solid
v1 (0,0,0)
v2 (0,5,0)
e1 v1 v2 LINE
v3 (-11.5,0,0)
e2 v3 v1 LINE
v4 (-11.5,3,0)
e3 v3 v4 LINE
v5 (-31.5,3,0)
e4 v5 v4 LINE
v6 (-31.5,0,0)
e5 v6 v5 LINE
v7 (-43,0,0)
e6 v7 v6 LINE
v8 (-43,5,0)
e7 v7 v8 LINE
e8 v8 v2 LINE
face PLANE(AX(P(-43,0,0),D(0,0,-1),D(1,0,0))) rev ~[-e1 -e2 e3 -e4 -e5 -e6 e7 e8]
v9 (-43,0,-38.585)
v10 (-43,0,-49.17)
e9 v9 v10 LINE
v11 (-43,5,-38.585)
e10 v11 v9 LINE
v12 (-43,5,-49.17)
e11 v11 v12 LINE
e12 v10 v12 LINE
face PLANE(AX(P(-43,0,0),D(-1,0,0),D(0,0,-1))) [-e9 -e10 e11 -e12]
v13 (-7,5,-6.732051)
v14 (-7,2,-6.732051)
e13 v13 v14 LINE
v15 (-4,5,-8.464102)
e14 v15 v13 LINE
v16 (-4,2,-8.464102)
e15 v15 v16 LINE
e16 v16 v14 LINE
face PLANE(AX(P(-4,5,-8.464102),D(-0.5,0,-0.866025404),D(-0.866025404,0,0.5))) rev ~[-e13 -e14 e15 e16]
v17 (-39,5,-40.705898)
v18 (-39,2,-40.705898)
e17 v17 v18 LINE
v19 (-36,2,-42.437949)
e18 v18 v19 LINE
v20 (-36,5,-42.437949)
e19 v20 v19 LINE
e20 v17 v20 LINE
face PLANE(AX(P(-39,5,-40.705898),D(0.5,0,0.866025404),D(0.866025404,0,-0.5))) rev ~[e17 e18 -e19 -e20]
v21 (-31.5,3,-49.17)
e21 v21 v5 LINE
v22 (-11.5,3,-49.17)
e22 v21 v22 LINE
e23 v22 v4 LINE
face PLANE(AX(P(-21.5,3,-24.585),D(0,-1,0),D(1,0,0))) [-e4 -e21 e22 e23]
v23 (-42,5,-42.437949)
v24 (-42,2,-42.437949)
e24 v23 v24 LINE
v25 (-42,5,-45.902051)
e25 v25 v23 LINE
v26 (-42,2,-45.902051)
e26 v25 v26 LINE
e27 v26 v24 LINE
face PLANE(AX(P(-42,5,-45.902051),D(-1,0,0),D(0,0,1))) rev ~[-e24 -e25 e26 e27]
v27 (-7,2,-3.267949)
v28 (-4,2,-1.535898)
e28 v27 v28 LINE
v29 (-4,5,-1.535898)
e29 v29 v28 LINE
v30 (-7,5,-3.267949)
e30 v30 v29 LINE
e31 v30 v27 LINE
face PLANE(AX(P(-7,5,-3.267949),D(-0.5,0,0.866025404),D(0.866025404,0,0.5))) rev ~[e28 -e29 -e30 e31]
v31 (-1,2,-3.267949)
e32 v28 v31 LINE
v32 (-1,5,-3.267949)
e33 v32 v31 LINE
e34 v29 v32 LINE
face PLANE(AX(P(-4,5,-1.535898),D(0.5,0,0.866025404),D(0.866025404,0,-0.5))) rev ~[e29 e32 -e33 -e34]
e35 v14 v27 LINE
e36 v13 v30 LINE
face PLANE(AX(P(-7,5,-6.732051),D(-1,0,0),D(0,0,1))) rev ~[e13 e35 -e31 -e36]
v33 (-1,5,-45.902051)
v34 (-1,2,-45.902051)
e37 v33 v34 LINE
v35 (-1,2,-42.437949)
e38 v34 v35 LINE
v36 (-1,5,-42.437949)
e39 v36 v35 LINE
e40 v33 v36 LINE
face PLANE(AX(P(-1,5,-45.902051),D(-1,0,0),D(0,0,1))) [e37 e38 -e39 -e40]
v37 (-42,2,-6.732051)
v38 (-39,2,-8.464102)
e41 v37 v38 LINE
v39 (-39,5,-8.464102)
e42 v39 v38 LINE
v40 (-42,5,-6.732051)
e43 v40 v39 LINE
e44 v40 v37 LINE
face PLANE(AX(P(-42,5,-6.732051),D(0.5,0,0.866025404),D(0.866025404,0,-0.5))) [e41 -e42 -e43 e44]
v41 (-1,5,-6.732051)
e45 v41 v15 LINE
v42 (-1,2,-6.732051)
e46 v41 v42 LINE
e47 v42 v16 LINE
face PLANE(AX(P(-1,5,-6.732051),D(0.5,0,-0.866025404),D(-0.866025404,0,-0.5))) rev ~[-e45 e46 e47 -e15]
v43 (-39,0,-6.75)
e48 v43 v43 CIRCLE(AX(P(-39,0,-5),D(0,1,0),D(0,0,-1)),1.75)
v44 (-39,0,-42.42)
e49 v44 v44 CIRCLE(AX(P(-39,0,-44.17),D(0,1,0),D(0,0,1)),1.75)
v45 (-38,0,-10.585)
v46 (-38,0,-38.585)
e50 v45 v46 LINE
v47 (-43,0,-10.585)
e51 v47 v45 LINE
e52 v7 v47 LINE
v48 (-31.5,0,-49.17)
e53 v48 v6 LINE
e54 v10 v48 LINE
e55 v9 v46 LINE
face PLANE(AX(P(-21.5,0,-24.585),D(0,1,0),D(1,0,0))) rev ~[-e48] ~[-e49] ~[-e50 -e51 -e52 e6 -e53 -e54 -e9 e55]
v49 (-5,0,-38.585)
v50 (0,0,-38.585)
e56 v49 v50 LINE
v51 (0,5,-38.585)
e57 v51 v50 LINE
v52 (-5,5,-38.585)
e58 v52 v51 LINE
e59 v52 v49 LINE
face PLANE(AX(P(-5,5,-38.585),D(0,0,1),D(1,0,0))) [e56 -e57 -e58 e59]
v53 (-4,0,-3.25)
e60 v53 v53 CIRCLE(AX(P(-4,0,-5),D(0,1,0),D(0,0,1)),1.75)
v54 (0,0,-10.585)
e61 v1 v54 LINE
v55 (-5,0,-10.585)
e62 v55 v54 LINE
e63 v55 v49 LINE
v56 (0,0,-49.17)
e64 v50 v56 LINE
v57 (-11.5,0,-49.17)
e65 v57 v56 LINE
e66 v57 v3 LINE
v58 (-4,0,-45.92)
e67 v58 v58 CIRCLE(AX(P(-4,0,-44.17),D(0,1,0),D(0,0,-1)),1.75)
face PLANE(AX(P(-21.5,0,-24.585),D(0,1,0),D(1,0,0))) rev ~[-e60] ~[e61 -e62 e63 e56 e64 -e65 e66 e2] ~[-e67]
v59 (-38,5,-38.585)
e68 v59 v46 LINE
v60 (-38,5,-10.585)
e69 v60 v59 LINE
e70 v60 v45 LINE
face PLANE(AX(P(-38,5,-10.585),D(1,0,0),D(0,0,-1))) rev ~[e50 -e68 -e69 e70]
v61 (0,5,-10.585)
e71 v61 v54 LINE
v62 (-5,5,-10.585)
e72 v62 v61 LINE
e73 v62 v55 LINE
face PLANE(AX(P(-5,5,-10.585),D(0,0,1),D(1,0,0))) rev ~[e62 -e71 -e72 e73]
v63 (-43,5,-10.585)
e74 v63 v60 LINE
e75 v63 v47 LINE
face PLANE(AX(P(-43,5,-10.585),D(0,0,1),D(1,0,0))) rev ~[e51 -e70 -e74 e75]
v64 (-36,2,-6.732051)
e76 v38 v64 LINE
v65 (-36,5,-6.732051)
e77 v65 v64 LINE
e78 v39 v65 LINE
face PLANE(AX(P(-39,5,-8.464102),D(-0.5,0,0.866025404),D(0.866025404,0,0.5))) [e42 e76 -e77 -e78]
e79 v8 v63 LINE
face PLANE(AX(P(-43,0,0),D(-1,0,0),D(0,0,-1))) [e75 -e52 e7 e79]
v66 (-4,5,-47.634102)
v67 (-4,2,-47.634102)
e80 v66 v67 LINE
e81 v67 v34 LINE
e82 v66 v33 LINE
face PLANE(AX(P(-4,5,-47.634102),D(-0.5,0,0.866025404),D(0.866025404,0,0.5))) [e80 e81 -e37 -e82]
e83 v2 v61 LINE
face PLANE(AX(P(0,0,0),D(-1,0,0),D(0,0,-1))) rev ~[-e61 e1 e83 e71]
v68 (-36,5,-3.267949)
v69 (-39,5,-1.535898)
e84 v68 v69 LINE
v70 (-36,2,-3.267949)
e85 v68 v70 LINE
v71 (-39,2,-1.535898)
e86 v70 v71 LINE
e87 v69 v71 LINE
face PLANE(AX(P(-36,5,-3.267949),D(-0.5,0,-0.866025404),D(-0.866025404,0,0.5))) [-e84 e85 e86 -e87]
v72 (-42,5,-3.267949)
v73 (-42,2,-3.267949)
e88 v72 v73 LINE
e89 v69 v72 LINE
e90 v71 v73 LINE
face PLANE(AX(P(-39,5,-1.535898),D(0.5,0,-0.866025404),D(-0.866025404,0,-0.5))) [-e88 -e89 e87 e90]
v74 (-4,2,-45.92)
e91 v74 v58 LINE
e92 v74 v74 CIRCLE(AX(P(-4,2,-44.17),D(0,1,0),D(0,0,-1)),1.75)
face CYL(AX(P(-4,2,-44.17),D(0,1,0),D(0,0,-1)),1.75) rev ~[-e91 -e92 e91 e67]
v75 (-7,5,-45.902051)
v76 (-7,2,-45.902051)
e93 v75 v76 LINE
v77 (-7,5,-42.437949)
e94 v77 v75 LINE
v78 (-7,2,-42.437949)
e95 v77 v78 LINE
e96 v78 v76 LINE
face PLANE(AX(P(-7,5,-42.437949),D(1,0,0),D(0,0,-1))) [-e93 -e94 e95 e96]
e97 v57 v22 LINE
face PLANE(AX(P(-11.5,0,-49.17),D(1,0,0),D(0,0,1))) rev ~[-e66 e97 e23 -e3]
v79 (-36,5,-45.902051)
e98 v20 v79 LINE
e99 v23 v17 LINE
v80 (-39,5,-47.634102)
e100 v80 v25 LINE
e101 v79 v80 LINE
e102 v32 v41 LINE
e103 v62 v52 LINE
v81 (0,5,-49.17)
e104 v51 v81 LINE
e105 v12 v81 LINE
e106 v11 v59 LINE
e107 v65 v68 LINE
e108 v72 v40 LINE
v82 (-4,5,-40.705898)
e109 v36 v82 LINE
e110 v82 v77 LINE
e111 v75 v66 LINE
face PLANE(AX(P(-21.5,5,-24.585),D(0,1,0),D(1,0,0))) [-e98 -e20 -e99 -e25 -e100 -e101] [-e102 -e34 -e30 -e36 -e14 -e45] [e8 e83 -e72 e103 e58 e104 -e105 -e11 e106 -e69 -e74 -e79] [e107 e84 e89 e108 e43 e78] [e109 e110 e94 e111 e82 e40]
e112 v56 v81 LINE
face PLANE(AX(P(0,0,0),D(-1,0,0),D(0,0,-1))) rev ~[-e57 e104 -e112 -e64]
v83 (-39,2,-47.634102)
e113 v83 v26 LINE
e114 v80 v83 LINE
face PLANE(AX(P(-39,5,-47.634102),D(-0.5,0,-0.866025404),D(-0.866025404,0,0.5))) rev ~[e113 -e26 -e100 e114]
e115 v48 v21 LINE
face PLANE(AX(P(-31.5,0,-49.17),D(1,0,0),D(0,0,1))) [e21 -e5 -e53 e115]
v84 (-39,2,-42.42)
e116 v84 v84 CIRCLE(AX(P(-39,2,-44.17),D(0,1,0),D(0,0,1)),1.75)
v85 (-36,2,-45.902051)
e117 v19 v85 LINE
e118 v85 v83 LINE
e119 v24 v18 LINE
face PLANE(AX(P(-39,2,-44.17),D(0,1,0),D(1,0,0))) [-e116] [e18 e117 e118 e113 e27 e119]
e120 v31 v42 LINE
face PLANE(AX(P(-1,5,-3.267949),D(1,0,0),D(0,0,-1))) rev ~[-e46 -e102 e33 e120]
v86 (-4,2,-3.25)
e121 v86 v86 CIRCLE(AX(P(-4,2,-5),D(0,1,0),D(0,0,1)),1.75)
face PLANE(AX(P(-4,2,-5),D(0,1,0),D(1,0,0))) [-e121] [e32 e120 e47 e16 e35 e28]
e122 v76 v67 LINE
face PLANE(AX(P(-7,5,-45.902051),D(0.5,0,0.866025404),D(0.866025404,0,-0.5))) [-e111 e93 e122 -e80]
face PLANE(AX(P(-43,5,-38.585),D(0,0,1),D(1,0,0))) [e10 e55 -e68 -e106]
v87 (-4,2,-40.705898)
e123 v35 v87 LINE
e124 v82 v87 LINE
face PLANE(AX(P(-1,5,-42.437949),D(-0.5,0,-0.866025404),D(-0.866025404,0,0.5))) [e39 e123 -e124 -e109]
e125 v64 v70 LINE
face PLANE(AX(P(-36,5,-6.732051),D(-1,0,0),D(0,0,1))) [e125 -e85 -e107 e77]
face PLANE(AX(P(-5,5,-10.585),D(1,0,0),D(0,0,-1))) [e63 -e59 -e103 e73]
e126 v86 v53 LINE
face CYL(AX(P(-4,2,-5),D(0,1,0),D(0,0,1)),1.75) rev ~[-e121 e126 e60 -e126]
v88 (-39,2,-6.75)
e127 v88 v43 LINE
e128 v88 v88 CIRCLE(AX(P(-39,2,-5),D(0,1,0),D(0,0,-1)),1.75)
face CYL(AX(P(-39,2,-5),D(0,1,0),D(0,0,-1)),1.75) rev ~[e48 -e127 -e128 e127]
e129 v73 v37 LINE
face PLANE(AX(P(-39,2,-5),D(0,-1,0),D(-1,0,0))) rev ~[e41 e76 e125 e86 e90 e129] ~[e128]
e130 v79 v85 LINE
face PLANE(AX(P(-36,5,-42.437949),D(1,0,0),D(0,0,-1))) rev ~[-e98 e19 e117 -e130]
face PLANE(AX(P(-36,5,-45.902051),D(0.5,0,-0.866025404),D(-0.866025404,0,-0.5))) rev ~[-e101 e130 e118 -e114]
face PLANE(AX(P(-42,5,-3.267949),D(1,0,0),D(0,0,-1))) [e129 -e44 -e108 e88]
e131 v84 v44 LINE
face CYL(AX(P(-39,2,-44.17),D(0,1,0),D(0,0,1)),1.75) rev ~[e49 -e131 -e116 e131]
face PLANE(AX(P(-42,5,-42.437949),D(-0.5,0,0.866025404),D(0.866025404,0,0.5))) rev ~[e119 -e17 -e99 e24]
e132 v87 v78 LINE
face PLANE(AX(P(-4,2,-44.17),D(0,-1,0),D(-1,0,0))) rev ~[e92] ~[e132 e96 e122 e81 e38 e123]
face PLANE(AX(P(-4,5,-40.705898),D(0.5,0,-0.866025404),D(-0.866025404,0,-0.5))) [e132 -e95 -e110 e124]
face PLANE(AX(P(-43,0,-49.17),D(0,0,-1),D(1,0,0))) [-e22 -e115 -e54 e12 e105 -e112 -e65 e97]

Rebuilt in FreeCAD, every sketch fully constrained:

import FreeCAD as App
import Part
import Sketcher
from FreeCAD import Vector
Q = App.Units.Quantity

doc = App.newDocument("Part")
params = doc.addObject("Spreadsheet::Sheet", "Params")
for row, (alias, value) in enumerate([
    ("sketch1_width", "43 mm"),
    ("sketch1_height", "49.17 mm"),
    ("pad1_length", "5 mm"),
    ("pocket1_length", "3 mm"),
    ("sketch3_diameter", "3.5 mm"),
    ("sketch4_width", "5 mm"),
    ("sketch4_height", "28 mm"),
    ("sketch5_width", "20 mm"),
    ("sketch5_height", "49.17 mm"),
    ("pocket4_length", "3 mm"),
], start=1):
    params.set(f"A{row}", alias)
    params.set(f"B{row}", "=" + value)
    params.setAlias(f"B{row}", alias)

body = doc.addObject("PartDesign::Body", "Body")

# Sketch on XZ plane
sketch1 = doc.addObject("Sketcher::SketchObject", "Sketch")
body.addObject(sketch1)
sketch1.AttachmentSupport = (doc.XZ_Plane, [""])
sketch1.MapMode = "FlatFace"
sketch1.addGeometry([
    Part.LineSegment(Vector(-43, -49, 0), Vector(-43, 0, 0)),
    Part.LineSegment(Vector(-43, 0, 0), Vector(0, 0, 0)),
    Part.LineSegment(Vector(0, 0, 0), Vector(0, -49, 0)),
    Part.LineSegment(Vector(0, -49, 0), Vector(-43, -49, 0)),
], False)
sketch1.addConstraint([
    Sketcher.Constraint("Coincident", 0, 2, 1, 1),
    Sketcher.Constraint("Coincident", 1, 2, 2, 1),
    Sketcher.Constraint("Coincident", 2, 2, 3, 1),
    Sketcher.Constraint("Coincident", 3, 2, 0, 1),
    Sketcher.Constraint("Vertical", 0),
    Sketcher.Constraint("Horizontal", 1),
    Sketcher.Constraint("Vertical", 2),
    Sketcher.Constraint("Horizontal", 3),
    Sketcher.Constraint("Coincident", 1, 2, -1, 1),
    Sketcher.Constraint("DistanceX", 1, 1, 1, 2, Q("43 mm")),
    Sketcher.Constraint("DistanceY", 0, 1, 0, 2, Q("49.17 mm")),
])
sketch1.setExpression("Constraints[9]", "Params.sketch1_width")
sketch1.setExpression("Constraints[10]", "Params.sketch1_height")
pad1 = doc.addObject("PartDesign::Pad", "Pad")
body.addObject(pad1)
pad1.Profile = sketch1
pad1.setExpression("Length", "Params.pad1_length")
pad1.Reversed = True

# Sketch on XZ plane
sketch2 = doc.addObject("Sketcher::SketchObject", "Sketch001")
body.addObject(sketch2)
sketch2.AttachmentSupport = (doc.XZ_Plane, [""])
sketch2.MapMode = "FlatFace"
sketch2.AttachmentOffset = App.Placement(Vector(0, 0, -5), App.Rotation())
sketch2.addGeometry([
    Part.LineSegment(Vector(-4, -40.7, 0), Vector(-1, -42.4, 0)),  # 0
    Part.LineSegment(Vector(-1, -42.4, 0), Vector(-1, -45.9, 0)),  # 1
    Part.LineSegment(Vector(-1, -45.9, 0), Vector(-4, -47.6, 0)),  # 2
    Part.LineSegment(Vector(-4, -47.6, 0), Vector(-7, -45.9, 0)),  # 3
    Part.LineSegment(Vector(-7, -45.9, 0), Vector(-7, -42.4, 0)),  # 4
    Part.LineSegment(Vector(-7, -42.4, 0), Vector(-4, -40.7, 0)),  # 5
    Part.LineSegment(Vector(-4, -8.5, 0), Vector(-7, -6.7, 0)),  # 6
    Part.LineSegment(Vector(-7, -6.7, 0), Vector(-7, -3.3, 0)),  # 7
    Part.LineSegment(Vector(-7, -3.3, 0), Vector(-4, -1.5, 0)),  # 8
    Part.LineSegment(Vector(-4, -1.5, 0), Vector(-1, -3.3, 0)),  # 9
    Part.LineSegment(Vector(-1, -3.3, 0), Vector(-1, -6.7, 0)),  # 10
    Part.LineSegment(Vector(-1, -6.7, 0), Vector(-4, -8.5, 0)),  # 11
    Part.LineSegment(Vector(-39, -8.5, 0), Vector(-42, -6.7, 0)),  # 12
    Part.LineSegment(Vector(-42, -6.7, 0), Vector(-42, -3.3, 0)),  # 13
    Part.LineSegment(Vector(-42, -3.3, 0), Vector(-39, -1.5, 0)),  # 14
    Part.LineSegment(Vector(-39, -1.5, 0), Vector(-36, -3.3, 0)),  # 15
    Part.LineSegment(Vector(-36, -3.3, 0), Vector(-36, -6.7, 0)),  # 16
    Part.LineSegment(Vector(-36, -6.7, 0), Vector(-39, -8.5, 0)),  # 17
    Part.LineSegment(Vector(-42, -45.9, 0), Vector(-42, -42.4, 0)),  # 18
    Part.LineSegment(Vector(-42, -42.4, 0), Vector(-39, -40.7, 0)),  # 19
    Part.LineSegment(Vector(-39, -40.7, 0), Vector(-36, -42.4, 0)),  # 20
    Part.LineSegment(Vector(-36, -42.4, 0), Vector(-36, -45.9, 0)),  # 21
    Part.LineSegment(Vector(-36, -45.9, 0), Vector(-39, -47.6, 0)),  # 22
    Part.LineSegment(Vector(-39, -47.6, 0), Vector(-42, -45.9, 0)),  # 23
], False)
sketch2.addConstraint([
    Sketcher.Constraint("Coincident", 0, 2, 1, 1),
    Sketcher.Constraint("Coincident", 1, 2, 2, 1),
    Sketcher.Constraint("Coincident", 2, 2, 3, 1),
    Sketcher.Constraint("Coincident", 3, 2, 4, 1),
    Sketcher.Constraint("Coincident", 4, 2, 5, 1),
    Sketcher.Constraint("Coincident", 5, 2, 0, 1),
    Sketcher.Constraint("Coincident", 6, 2, 7, 1),
    Sketcher.Constraint("Coincident", 7, 2, 8, 1),
    Sketcher.Constraint("Coincident", 8, 2, 9, 1),
    Sketcher.Constraint("Coincident", 9, 2, 10, 1),
    Sketcher.Constraint("Coincident", 10, 2, 11, 1),
    Sketcher.Constraint("Coincident", 11, 2, 6, 1),
    Sketcher.Constraint("Coincident", 12, 2, 13, 1),
    Sketcher.Constraint("Coincident", 13, 2, 14, 1),
    Sketcher.Constraint("Coincident", 14, 2, 15, 1),
    Sketcher.Constraint("Coincident", 15, 2, 16, 1),
    Sketcher.Constraint("Coincident", 16, 2, 17, 1),
    Sketcher.Constraint("Coincident", 17, 2, 12, 1),
    Sketcher.Constraint("Coincident", 18, 2, 19, 1),
    Sketcher.Constraint("Coincident", 19, 2, 20, 1),
    Sketcher.Constraint("Coincident", 20, 2, 21, 1),
    Sketcher.Constraint("Coincident", 21, 2, 22, 1),
    Sketcher.Constraint("Coincident", 22, 2, 23, 1),
    Sketcher.Constraint("Coincident", 23, 2, 18, 1),
    Sketcher.Constraint("Vertical", 1),
    Sketcher.Constraint("Vertical", 4),
    Sketcher.Constraint("Vertical", 7),
    Sketcher.Constraint("Vertical", 10),
    Sketcher.Constraint("Vertical", 13),
    Sketcher.Constraint("Vertical", 16),
    Sketcher.Constraint("Vertical", 18),
    Sketcher.Constraint("Vertical", 21),
    Sketcher.Constraint("Parallel", 0, 3),
    Sketcher.Constraint("Parallel", 2, 5),
    Sketcher.Constraint("Parallel", 3, 6),
    Sketcher.Constraint("Parallel", 5, 8),
    Sketcher.Constraint("Parallel", 6, 9),
    Sketcher.Constraint("Parallel", 8, 11),
    Sketcher.Constraint("Parallel", 9, 12),
    Sketcher.Constraint("Parallel", 11, 14),
    Sketcher.Constraint("Parallel", 12, 15),
    Sketcher.Constraint("Parallel", 14, 17),
    Sketcher.Constraint("Parallel", 17, 19),
    Sketcher.Constraint("Parallel", 15, 20),
    Sketcher.Constraint("Parallel", 19, 22),
    Sketcher.Constraint("Parallel", 20, 23),
    Sketcher.Constraint("Horizontal", 1, 2, 3, 2),
    Sketcher.Constraint("Horizontal", 0, 2, 4, 2),
    Sketcher.Constraint("Horizontal", 7, 2, 9, 2),
    Sketcher.Constraint("Horizontal", 6, 2, 10, 2),
    Sketcher.Constraint("Horizontal", 10, 2, 12, 2),
    Sketcher.Constraint("Horizontal", 9, 2, 13, 2),
    Sketcher.Constraint("Horizontal", 8, 2, 14, 2),
    Sketcher.Constraint("Horizontal", 13, 2, 15, 2),
    Sketcher.Constraint("Horizontal", 12, 2, 16, 2),
    Sketcher.Constraint("Horizontal", 4, 2, 18, 2),
    Sketcher.Constraint("Horizontal", 5, 2, 19, 2),
    Sketcher.Constraint("Horizontal", 18, 2, 20, 2),
    Sketcher.Constraint("Horizontal", 3, 2, 21, 2),
    Sketcher.Constraint("Horizontal", 2, 2, 22, 2),
    Sketcher.Constraint("Vertical", 2, 2, 5, 2),
    Sketcher.Constraint("Vertical", 4, 2, 6, 2),
    Sketcher.Constraint("Vertical", 5, 2, 8, 2),
    Sketcher.Constraint("Vertical", 13, 2, 18, 2),
    Sketcher.Constraint("Equal", 4, 7),
    Sketcher.Constraint("Angle", 0, Q("-30 deg")),
    Sketcher.Constraint("DistanceX", 0, 2, -1, 1, Q("1 mm")),
    Sketcher.Constraint("DistanceX", 2, 2, -1, 1, Q("4 mm")),
    Sketcher.Constraint("DistanceX", 12, 2, -1, 1, Q("42 mm")),
    Sketcher.Constraint("DistanceY", 3, 2, 6, 2, Q("39.17 mm")),
    Sketcher.Constraint("DistanceY", 1, 2, 1, 1, Q("3.464102 mm")),
    Sketcher.Constraint("DistanceY", 2, 2, -1, 1, Q("47.634102 mm")),
])
pocket1 = doc.addObject("PartDesign::Pocket", "Pocket")
body.addObject(pocket1)
pocket1.Profile = sketch2
pocket1.setExpression("Length", "Params.pocket1_length")
pocket1.Reversed = True

# Sketch on XZ plane
sketch3 = doc.addObject("Sketcher::SketchObject", "Sketch002")
body.addObject(sketch3)
sketch3.AttachmentSupport = (doc.XZ_Plane, [""])
sketch3.MapMode = "FlatFace"
sketch3.AttachmentOffset = App.Placement(Vector(0, 0, -2), App.Rotation())
sketch3.addGeometry([
    Part.Circle(Vector(-39, -44.2, 0), Vector(0, 0, 1), 1.8),
    Part.Circle(Vector(-39, -5, 0), Vector(0, 0, 1), 1.8),
    Part.Circle(Vector(-4, -5, 0), Vector(0, 0, 1), 1.8),
    Part.Circle(Vector(-4, -44.2, 0), Vector(0, 0, 1), 1.8),
], False)
sketch3.addConstraint([
    Sketcher.Constraint("Equal", 0, 1),
    Sketcher.Constraint("Equal", 1, 2),
    Sketcher.Constraint("Equal", 2, 3),
    Sketcher.Constraint("Horizontal", 1, 3, 2, 3),
    Sketcher.Constraint("Horizontal", 0, 3, 3, 3),
    Sketcher.Constraint("Vertical", 0, 3, 1, 3),
    Sketcher.Constraint("Vertical", 2, 3, 3, 3),
    Sketcher.Constraint("Diameter", 0, Q("3.5 mm")),
    Sketcher.Constraint("DistanceX", 0, 3, -1, 1, Q("39 mm")),
    Sketcher.Constraint("DistanceY", 1, 3, -1, 1, Q("5 mm")),
    Sketcher.Constraint("DistanceX", 2, 3, -1, 1, Q("4 mm")),
    Sketcher.Constraint("DistanceY", 0, 3, -1, 1, Q("44.17 mm")),
])
sketch3.setExpression("Constraints[7]", "Params.sketch3_diameter")
pocket2 = doc.addObject("PartDesign::Pocket", "Pocket001")
body.addObject(pocket2)
pocket2.Profile = sketch3
pocket2.Type = "ThroughAll"
pocket2.Reversed = True

# Sketch on XZ plane
sketch4 = doc.addObject("Sketcher::SketchObject", "Sketch003")
body.addObject(sketch4)
sketch4.AttachmentSupport = (doc.XZ_Plane, [""])
sketch4.MapMode = "FlatFace"
sketch4.AttachmentOffset = App.Placement(Vector(0, 0, -5), App.Rotation())
sketch4.addGeometry([
    Part.LineSegment(Vector(-5, -39, 0), Vector(-5, -11, 0)),  # 0
    Part.LineSegment(Vector(-5, -11, 0), Vector(0, -11, 0)),  # 1
    Part.LineSegment(Vector(0, -11, 0), Vector(0, -39, 0)),  # 2
    Part.LineSegment(Vector(0, -39, 0), Vector(-5, -39, 0)),  # 3
    Part.LineSegment(Vector(-43, -39, 0), Vector(-43, -11, 0)),  # 4
    Part.LineSegment(Vector(-43, -11, 0), Vector(-38, -11, 0)),  # 5
    Part.LineSegment(Vector(-38, -11, 0), Vector(-38, -39, 0)),  # 6
    Part.LineSegment(Vector(-38, -39, 0), Vector(-43, -39, 0)),  # 7
], False)
sketch4.addConstraint([
    Sketcher.Constraint("Coincident", 0, 2, 1, 1),
    Sketcher.Constraint("Coincident", 1, 2, 2, 1),
    Sketcher.Constraint("Coincident", 2, 2, 3, 1),
    Sketcher.Constraint("Coincident", 3, 2, 0, 1),
    Sketcher.Constraint("Coincident", 4, 2, 5, 1),
    Sketcher.Constraint("Coincident", 5, 2, 6, 1),
    Sketcher.Constraint("Coincident", 6, 2, 7, 1),
    Sketcher.Constraint("Coincident", 7, 2, 4, 1),
    Sketcher.Constraint("Vertical", 0),
    Sketcher.Constraint("Horizontal", 1),
    Sketcher.Constraint("Vertical", 2),
    Sketcher.Constraint("Horizontal", 3),
    Sketcher.Constraint("Vertical", 4),
    Sketcher.Constraint("Horizontal", 5),
    Sketcher.Constraint("Vertical", 6),
    Sketcher.Constraint("Horizontal", 7),
    Sketcher.Constraint("PointOnObject", 1, 2, -2),
    Sketcher.Constraint("Horizontal", 1, 2, 4, 2),
    Sketcher.Constraint("Horizontal", 3, 2, 6, 2),
    Sketcher.Constraint("Equal", 3, 5),
    Sketcher.Constraint("DistanceX", 1, 1, 1, 2, Q("5 mm")),
    Sketcher.Constraint("DistanceY", 0, 1, 0, 2, Q("28 mm")),
    Sketcher.Constraint("DistanceX", 4, 2, -1, 1, Q("43 mm")),
    Sketcher.Constraint("DistanceY", 0, 2, -1, 1, Q("10.585 mm")),
])
sketch4.setExpression("Constraints[20]", "Params.sketch4_width")
sketch4.setExpression("Constraints[21]", "Params.sketch4_height")
pocket3 = doc.addObject("PartDesign::Pocket", "Pocket002")
body.addObject(pocket3)
pocket3.Profile = sketch4
pocket3.Type = "ThroughAll"
pocket3.Reversed = True

# Sketch on XZ plane
sketch5 = doc.addObject("Sketcher::SketchObject", "Sketch004")
body.addObject(sketch5)
sketch5.AttachmentSupport = (doc.XZ_Plane, [""])
sketch5.MapMode = "FlatFace"
sketch5.addGeometry([
    Part.LineSegment(Vector(-32, 0, 0), Vector(-32, -49, 0)),
    Part.LineSegment(Vector(-32, -49, 0), Vector(-12, -49, 0)),
    Part.LineSegment(Vector(-12, -49, 0), Vector(-12, 0, 0)),
    Part.LineSegment(Vector(-12, 0, 0), Vector(-32, 0, 0)),
], False)
sketch5.addConstraint([
    Sketcher.Constraint("Coincident", 0, 2, 1, 1),
    Sketcher.Constraint("Coincident", 1, 2, 2, 1),
    Sketcher.Constraint("Coincident", 2, 2, 3, 1),
    Sketcher.Constraint("Coincident", 3, 2, 0, 1),
    Sketcher.Constraint("Vertical", 0),
    Sketcher.Constraint("Horizontal", 1),
    Sketcher.Constraint("Vertical", 2),
    Sketcher.Constraint("Horizontal", 3),
    Sketcher.Constraint("PointOnObject", 2, 2, -1),
    Sketcher.Constraint("DistanceX", 1, 1, 1, 2, Q("20 mm")),
    Sketcher.Constraint("DistanceY", 0, 2, 0, 1, Q("49.17 mm")),
    Sketcher.Constraint("DistanceX", 0, 2, -1, 1, Q("31.5 mm")),
])
sketch5.setExpression("Constraints[9]", "Params.sketch5_width")
sketch5.setExpression("Constraints[10]", "Params.sketch5_height")
pocket4 = doc.addObject("PartDesign::Pocket", "Pocket003")
body.addObject(pocket4)
pocket4.Profile = sketch5
pocket4.setExpression("Length", "Params.pocket4_length")

doc.recompute()
